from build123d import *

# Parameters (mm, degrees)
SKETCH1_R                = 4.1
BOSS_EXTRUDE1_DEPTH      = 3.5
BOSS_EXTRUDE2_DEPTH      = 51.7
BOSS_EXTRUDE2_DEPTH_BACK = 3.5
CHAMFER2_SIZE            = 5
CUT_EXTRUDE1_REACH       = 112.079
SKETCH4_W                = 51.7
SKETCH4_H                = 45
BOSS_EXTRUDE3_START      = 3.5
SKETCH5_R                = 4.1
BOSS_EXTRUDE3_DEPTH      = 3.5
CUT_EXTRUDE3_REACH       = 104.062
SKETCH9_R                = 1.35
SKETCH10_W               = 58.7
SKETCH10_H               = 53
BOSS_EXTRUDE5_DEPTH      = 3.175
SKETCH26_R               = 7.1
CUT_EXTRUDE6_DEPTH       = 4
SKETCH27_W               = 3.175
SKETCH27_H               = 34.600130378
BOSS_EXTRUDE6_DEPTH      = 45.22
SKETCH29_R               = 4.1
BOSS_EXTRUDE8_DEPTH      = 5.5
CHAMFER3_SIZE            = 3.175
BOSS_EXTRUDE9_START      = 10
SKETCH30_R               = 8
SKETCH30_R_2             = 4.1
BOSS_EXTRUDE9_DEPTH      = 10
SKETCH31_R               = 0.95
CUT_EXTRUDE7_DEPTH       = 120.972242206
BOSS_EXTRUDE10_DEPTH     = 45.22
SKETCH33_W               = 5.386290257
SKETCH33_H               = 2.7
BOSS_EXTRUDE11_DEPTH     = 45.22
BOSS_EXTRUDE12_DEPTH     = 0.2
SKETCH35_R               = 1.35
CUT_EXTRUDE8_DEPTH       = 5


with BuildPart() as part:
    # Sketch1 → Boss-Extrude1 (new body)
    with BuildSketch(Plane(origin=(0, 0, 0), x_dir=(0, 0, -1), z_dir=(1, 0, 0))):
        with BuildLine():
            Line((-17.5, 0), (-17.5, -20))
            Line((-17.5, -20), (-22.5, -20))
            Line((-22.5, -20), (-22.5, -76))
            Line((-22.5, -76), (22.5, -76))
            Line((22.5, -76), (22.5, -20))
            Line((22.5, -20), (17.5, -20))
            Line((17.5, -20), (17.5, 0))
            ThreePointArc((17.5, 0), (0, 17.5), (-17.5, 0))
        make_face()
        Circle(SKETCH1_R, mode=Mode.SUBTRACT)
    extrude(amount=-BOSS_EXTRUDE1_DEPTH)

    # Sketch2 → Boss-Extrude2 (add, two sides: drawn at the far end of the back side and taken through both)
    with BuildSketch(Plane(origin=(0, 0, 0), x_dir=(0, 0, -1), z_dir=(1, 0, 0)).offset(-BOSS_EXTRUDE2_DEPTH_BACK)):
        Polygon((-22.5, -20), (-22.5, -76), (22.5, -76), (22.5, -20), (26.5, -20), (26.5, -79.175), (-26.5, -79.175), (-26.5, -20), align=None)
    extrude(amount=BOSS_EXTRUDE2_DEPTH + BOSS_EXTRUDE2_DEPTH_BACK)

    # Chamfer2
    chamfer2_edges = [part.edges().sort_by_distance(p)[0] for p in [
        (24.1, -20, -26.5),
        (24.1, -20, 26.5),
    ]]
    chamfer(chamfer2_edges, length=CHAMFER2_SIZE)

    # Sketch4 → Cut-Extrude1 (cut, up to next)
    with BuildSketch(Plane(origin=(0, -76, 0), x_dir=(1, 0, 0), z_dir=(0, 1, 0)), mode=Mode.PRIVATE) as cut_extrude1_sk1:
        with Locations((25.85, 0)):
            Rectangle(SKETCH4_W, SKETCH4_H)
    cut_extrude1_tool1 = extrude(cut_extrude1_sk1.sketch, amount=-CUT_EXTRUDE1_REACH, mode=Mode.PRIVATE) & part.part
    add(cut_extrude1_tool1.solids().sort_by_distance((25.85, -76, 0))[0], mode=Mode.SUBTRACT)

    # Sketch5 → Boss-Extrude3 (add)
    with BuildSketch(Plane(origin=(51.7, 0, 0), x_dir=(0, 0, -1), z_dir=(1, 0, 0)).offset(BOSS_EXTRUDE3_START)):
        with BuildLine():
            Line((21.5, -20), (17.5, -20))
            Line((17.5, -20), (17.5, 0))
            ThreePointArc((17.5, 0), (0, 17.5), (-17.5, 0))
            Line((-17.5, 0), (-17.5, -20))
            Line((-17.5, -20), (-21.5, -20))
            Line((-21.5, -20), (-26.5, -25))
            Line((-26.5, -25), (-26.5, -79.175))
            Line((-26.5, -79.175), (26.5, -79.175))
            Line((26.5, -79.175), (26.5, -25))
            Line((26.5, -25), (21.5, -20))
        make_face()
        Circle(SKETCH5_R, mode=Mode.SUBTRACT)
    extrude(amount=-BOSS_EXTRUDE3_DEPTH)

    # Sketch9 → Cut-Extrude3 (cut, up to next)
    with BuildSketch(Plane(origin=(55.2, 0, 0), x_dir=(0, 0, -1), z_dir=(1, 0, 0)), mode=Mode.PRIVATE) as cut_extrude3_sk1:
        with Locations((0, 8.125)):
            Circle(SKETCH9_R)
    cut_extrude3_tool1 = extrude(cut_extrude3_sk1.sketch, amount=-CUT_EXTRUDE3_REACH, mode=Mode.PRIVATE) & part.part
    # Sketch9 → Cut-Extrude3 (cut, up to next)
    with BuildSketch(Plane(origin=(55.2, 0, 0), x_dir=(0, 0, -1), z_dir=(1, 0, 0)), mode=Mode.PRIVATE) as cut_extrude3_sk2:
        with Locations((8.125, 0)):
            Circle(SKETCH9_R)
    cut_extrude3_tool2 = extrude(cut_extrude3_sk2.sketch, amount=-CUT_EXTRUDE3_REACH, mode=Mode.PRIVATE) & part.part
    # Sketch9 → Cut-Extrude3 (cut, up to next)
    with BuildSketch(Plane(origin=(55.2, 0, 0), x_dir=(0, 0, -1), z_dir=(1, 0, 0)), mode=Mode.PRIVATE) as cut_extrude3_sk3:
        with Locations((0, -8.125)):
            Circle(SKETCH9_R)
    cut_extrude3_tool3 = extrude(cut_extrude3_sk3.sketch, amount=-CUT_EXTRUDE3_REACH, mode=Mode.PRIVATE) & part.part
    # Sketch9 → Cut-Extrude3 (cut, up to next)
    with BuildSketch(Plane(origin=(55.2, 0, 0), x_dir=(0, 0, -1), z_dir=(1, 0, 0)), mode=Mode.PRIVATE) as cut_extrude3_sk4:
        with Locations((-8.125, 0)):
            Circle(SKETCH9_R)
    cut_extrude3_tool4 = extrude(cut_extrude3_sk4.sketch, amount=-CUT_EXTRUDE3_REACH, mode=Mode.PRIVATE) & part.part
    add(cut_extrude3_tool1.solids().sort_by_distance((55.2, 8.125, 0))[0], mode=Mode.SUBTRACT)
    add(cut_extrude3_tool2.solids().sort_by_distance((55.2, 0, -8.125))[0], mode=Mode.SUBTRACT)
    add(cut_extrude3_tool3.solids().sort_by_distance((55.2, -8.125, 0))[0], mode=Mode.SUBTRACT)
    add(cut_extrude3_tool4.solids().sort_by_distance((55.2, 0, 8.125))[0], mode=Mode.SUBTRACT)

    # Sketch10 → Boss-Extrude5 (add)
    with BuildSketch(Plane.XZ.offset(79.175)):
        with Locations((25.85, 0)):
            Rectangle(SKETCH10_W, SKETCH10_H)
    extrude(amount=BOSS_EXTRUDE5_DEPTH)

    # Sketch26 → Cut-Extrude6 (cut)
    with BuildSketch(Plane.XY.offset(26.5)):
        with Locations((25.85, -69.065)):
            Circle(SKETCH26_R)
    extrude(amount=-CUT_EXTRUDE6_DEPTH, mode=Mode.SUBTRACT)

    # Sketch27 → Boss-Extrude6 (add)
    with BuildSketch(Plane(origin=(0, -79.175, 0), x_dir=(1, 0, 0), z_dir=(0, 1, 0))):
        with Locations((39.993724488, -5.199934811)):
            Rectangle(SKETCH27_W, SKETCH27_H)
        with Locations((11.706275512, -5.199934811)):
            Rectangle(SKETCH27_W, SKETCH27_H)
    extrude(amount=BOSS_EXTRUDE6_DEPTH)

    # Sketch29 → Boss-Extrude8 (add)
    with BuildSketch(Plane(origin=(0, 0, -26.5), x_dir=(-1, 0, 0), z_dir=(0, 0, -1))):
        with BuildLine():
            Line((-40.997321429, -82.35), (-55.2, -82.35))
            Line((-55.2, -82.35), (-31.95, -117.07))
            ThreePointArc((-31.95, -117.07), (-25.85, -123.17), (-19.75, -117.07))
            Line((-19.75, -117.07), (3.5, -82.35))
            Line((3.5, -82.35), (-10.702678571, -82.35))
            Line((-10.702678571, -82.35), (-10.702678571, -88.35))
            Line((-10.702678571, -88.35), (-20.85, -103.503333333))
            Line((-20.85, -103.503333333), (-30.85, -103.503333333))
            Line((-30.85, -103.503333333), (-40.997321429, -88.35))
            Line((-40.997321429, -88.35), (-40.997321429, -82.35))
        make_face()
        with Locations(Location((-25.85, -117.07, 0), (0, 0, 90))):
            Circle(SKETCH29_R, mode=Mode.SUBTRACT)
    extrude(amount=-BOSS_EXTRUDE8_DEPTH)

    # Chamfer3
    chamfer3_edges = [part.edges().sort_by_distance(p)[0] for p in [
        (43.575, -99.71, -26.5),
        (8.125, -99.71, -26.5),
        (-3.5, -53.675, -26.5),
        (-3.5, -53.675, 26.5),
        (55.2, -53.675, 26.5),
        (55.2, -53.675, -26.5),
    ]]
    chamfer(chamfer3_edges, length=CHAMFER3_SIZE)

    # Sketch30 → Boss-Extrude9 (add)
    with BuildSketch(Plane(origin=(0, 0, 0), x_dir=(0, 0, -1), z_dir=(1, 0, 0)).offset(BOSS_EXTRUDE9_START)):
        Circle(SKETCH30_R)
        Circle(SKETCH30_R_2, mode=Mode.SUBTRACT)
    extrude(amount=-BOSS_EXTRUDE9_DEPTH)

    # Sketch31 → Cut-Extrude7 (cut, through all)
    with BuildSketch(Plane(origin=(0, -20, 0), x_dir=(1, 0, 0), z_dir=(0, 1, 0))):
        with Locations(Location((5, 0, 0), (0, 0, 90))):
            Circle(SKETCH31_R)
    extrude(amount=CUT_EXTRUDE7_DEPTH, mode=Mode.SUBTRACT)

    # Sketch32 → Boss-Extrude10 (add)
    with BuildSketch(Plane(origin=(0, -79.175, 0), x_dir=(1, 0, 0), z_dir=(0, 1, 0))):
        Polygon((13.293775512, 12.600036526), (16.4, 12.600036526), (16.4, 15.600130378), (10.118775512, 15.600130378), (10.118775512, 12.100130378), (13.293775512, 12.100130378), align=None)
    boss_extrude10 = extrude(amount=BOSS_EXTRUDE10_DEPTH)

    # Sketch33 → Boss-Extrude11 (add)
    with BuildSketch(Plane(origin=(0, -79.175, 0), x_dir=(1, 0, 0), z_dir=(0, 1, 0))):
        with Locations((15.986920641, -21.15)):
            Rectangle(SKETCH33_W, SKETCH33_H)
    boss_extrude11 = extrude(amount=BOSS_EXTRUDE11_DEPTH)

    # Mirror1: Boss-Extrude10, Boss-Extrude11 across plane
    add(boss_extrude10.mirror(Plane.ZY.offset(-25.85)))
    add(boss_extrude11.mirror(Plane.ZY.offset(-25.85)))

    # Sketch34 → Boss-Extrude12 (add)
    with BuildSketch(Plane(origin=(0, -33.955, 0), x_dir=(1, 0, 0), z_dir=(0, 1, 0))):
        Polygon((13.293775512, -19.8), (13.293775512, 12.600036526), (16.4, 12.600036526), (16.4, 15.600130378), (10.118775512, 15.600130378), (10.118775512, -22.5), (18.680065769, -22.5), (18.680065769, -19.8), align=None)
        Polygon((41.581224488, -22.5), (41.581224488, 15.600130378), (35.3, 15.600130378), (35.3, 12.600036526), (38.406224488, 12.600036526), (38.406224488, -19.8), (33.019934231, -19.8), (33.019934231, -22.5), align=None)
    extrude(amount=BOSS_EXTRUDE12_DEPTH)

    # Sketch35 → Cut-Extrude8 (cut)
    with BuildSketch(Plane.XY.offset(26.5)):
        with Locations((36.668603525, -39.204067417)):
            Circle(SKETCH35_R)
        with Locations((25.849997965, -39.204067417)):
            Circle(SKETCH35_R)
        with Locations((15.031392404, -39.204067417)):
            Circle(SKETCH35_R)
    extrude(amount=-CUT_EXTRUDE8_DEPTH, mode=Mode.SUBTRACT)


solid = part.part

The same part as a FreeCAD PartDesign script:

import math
import FreeCAD as App
import Part
import Sketcher
Q = App.Units.Quantity


def edges_at(feature, points):
    """Names of the edges that pass closest to the given points."""
    edges = feature.Shape.Edges
    near = lambda p: min(range(len(edges)), key=lambda i: edges[i].distToShape(Part.Vertex(*p))[0])
    return sorted({f"Edge{near(p) + 1}" for p in points})

doc = App.newDocument("Part")
body = doc.addObject("PartDesign::Body", "Body")

# Sketch on YZ plane
sketch1 = doc.addObject("Sketcher::SketchObject", "Sketch")
body.addObject(sketch1)
sketch1.AttachmentSupport = (doc.YZ_Plane, [""])
sketch1.MapMode = "FlatFace"
sketch1.addGeometry(Part.LineSegment(App.Vector(0, 17.5, 0), App.Vector(-20, 17.5, 0)), False)
sketch1.addGeometry(Part.LineSegment(App.Vector(-20, 17.5, 0), App.Vector(-20, 22.5, 0)), False)
sketch1.addGeometry(Part.LineSegment(App.Vector(-20, 22.5, 0), App.Vector(-76, 22.5, 0)), False)
sketch1.addGeometry(Part.LineSegment(App.Vector(-76, 22.5, 0), App.Vector(-76, -22.5, 0)), False)
sketch1.addGeometry(Part.LineSegment(App.Vector(-76, -22.5, 0), App.Vector(-20, -22.5, 0)), False)
sketch1.addGeometry(Part.LineSegment(App.Vector(-20, -22.5, 0), App.Vector(-20, -17.5, 0)), False)
sketch1.addGeometry(Part.LineSegment(App.Vector(-20, -17.5, 0), App.Vector(0, -17.5, 0)), False)
sketch1.addGeometry(Part.ArcOfCircle(Part.Circle(App.Vector(0, 0, 0), App.Vector(0, 0, 1), 17.5), math.radians(-90), math.radians(90)), False)
sketch1.addGeometry(Part.Circle(App.Vector(0, 0, 0), App.Vector(0, 0, 1), 4.1), False)
sketch1.addConstraint(Sketcher.Constraint("Coincident", 0, 2, 1, 1))
sketch1.addConstraint(Sketcher.Constraint("Coincident", 1, 2, 2, 1))
sketch1.addConstraint(Sketcher.Constraint("Coincident", 2, 2, 3, 1))
sketch1.addConstraint(Sketcher.Constraint("Coincident", 3, 2, 4, 1))
sketch1.addConstraint(Sketcher.Constraint("Coincident", 4, 2, 5, 1))
sketch1.addConstraint(Sketcher.Constraint("Coincident", 5, 2, 6, 1))
sketch1.addConstraint(Sketcher.Constraint("Tangent", 6, 2, 7, 1))
sketch1.addConstraint(Sketcher.Constraint("Tangent", 7, 2, 0, 1))
sketch1.addConstraint(Sketcher.Constraint("Horizontal", 0))
sketch1.addConstraint(Sketcher.Constraint("Vertical", 1))
sketch1.addConstraint(Sketcher.Constraint("Horizontal", 2))
sketch1.addConstraint(Sketcher.Constraint("Vertical", 3))
sketch1.addConstraint(Sketcher.Constraint("Horizontal", 4))
sketch1.addConstraint(Sketcher.Constraint("Vertical", 5))
sketch1.addConstraint(Sketcher.Constraint("Horizontal", 6))
sketch1.addConstraint(Sketcher.Constraint("Coincident", 7, 3, -1, 1))
sketch1.addConstraint(Sketcher.Constraint("Coincident", 8, 3, -1, 1))
sketch1.addConstraint(Sketcher.Constraint("Symmetric", 1, 2, 4, 2, -1))
sketch1.addConstraint(Sketcher.Constraint("Diameter", 8, Q("8.2 mm")))
sketch1.addConstraint(Sketcher.Constraint("Radius", 7, Q("17.5 mm")))
sketch1.addConstraint(Sketcher.Constraint("DistanceX", 0, 2, 0, 1, Q("20 mm")))
sketch1.addConstraint(Sketcher.Constraint("DistanceX", 2, 2, 2, 1, Q("56 mm")))
sketch1.addConstraint(Sketcher.Constraint("DistanceY", 1, 1, 1, 2, Q("5 mm")))
pad1 = doc.addObject("PartDesign::Pad", "Pad")
body.addObject(pad1)
pad1.Profile = sketch1
pad1.Length = 3.5
pad1.Reversed = True

# Sketch on YZ plane
sketch2 = doc.addObject("Sketcher::SketchObject", "Sketch001")
body.addObject(sketch2)
sketch2.AttachmentSupport = (doc.YZ_Plane, [""])
sketch2.MapMode = "FlatFace"
sketch2.addGeometry(Part.LineSegment(App.Vector(-76, 22.5, 0), App.Vector(-20, 22.5, 0)), False)
sketch2.addGeometry(Part.LineSegment(App.Vector(-20, 22.5, 0), App.Vector(-20, 26.5, 0)), False)
sketch2.addGeometry(Part.LineSegment(App.Vector(-20, 26.5, 0), App.Vector(-79.2, 26.5, 0)), False)
sketch2.addGeometry(Part.LineSegment(App.Vector(-79.2, 26.5, 0), App.Vector(-79.2, -26.5, 0)), False)
sketch2.addGeometry(Part.LineSegment(App.Vector(-79.2, -26.5, 0), App.Vector(-20, -26.5, 0)), False)
sketch2.addGeometry(Part.LineSegment(App.Vector(-20, -26.5, 0), App.Vector(-20, -22.5, 0)), False)
sketch2.addGeometry(Part.LineSegment(App.Vector(-20, -22.5, 0), App.Vector(-76, -22.5, 0)), False)
sketch2.addGeometry(Part.LineSegment(App.Vector(-76, -22.5, 0), App.Vector(-76, 22.5, 0)), False)
sketch2.addConstraint(Sketcher.Constraint("Coincident", 0, 2, 1, 1))
sketch2.addConstraint(Sketcher.Constraint("Coincident", 1, 2, 2, 1))
sketch2.addConstraint(Sketcher.Constraint("Coincident", 2, 2, 3, 1))
sketch2.addConstraint(Sketcher.Constraint("Coincident", 3, 2, 4, 1))
sketch2.addConstraint(Sketcher.Constraint("Coincident", 4, 2, 5, 1))
sketch2.addConstraint(Sketcher.Constraint("Coincident", 5, 2, 6, 1))
sketch2.addConstraint(Sketcher.Constraint("Coincident", 6, 2, 7, 1))
sketch2.addConstraint(Sketcher.Constraint("Coincident", 7, 2, 0, 1))
sketch2.addConstraint(Sketcher.Constraint("Horizontal", 0))
sketch2.addConstraint(Sketcher.Constraint("Vertical", 1))
sketch2.addConstraint(Sketcher.Constraint("Horizontal", 2))
sketch2.addConstraint(Sketcher.Constraint("Vertical", 3))
sketch2.addConstraint(Sketcher.Constraint("Horizontal", 4))
sketch2.addConstraint(Sketcher.Constraint("Vertical", 5))
sketch2.addConstraint(Sketcher.Constraint("Horizontal", 6))
sketch2.addConstraint(Sketcher.Constraint("Vertical", 7))
sketch2.addConstraint(Sketcher.Constraint("Symmetric", 1, 2, 4, 2, -1))
sketch2.addConstraint(Sketcher.Constraint("Equal", 1, 5))
sketch2.addConstraint(Sketcher.Constraint("DistanceX", 0, 1, 0, 2, Q("56 mm")))
sketch2.addConstraint(Sketcher.Constraint("DistanceY", 1, 1, 1, 2, Q("4 mm")))
sketch2.addConstraint(Sketcher.Constraint("DistanceY", 3, 2, 3, 1, Q("53 mm")))
sketch2.addConstraint(Sketcher.Constraint("DistanceX", 0, 2, -1, 1, Q("20 mm")))
sketch2.addConstraint(Sketcher.Constraint("DistanceX", 2, 2, 2, 1, Q("59.175 mm")))
pad2 = doc.addObject("PartDesign::Pad", "Pad001")
body.addObject(pad2)
pad2.Profile = sketch2
pad2.Type = "TwoLengths"
pad2.Length = 51.7
pad2.Length2 = 3.5
doc.recompute()

chamfer = doc.addObject("PartDesign::Chamfer", "Chamfer")
body.addObject(chamfer)
chamfer.Base = (pad2, edges_at(pad2, [(24.1, -20, -26.5), (24.1, -20, 26.5)]))
chamfer.Size = 5

# Sketch on XZ plane
sketch3 = doc.addObject("Sketcher::SketchObject", "Sketch002")
body.addObject(sketch3)
sketch3.AttachmentSupport = (doc.XZ_Plane, [""])
sketch3.MapMode = "FlatFace"
sketch3.AttachmentOffset = App.Placement(App.Vector(0, 0, 76), App.Rotation())
sketch3.addGeometry(Part.LineSegment(App.Vector(0, -22, 0), App.Vector(0, 22, 0)), False)
sketch3.addGeometry(Part.LineSegment(App.Vector(0, 22, 0), App.Vector(52, 22, 0)), False)
sketch3.addGeometry(Part.LineSegment(App.Vector(52, 22, 0), App.Vector(52, -22, 0)), False)
sketch3.addGeometry(Part.LineSegment(App.Vector(52, -22, 0), App.Vector(0, -22, 0)), False)
sketch3.addConstraint(Sketcher.Constraint("Coincident", 0, 2, 1, 1))
sketch3.addConstraint(Sketcher.Constraint("Coincident", 1, 2, 2, 1))
sketch3.addConstraint(Sketcher.Constraint("Coincident", 2, 2, 3, 1))
sketch3.addConstraint(Sketcher.Constraint("Coincident", 3, 2, 0, 1))
sketch3.addConstraint(Sketcher.Constraint("Vertical", 0))
sketch3.addConstraint(Sketcher.Constraint("Horizontal", 1))
sketch3.addConstraint(Sketcher.Constraint("Vertical", 2))
sketch3.addConstraint(Sketcher.Constraint("Horizontal", 3))
sketch3.addConstraint(Sketcher.Constraint("Symmetric", 0, 2, 3, 2, -1, 1))
sketch3.addConstraint(Sketcher.Constraint("DistanceY", 0, 1, 0, 2, Q("45 mm")))
sketch3.addConstraint(Sketcher.Constraint("DistanceX", 1, 1, 1, 2, Q("51.7 mm")))
pocket1 = doc.addObject("PartDesign::Pocket", "Pocket")
body.addObject(pocket1)
pocket1.Profile = sketch3
pocket1.Type = "UpToFirst"
pocket1.Reversed = True

# Sketch on YZ plane
sketch4 = doc.addObject("Sketcher::SketchObject", "Sketch003")
body.addObject(sketch4)
sketch4.AttachmentSupport = (doc.YZ_Plane, [""])
sketch4.MapMode = "FlatFace"
sketch4.AttachmentOffset = App.Placement(App.Vector(0, 0, 55.2), App.Rotation())
sketch4.addGeometry(Part.LineSegment(App.Vector(-20, -21.5, 0), App.Vector(-20, -17.5, 0)), False)
sketch4.addGeometry(Part.LineSegment(App.Vector(-20, -17.5, 0), App.Vector(0, -17.5, 0)), False)
sketch4.addGeometry(Part.ArcOfCircle(Part.Circle(App.Vector(0, 0, 0), App.Vector(0, 0, 1), 17.5), math.radians(-90), math.radians(90)), False)
sketch4.addGeometry(Part.LineSegment(App.Vector(0, 17.5, 0), App.Vector(-20, 17.5, 0)), False)
sketch4.addGeometry(Part.LineSegment(App.Vector(-20, 17.5, 0), App.Vector(-20, 21.5, 0)), False)
sketch4.addGeometry(Part.LineSegment(App.Vector(-20, 21.5, 0), App.Vector(-25, 26.5, 0)), False)
sketch4.addGeometry(Part.LineSegment(App.Vector(-25, 26.5, 0), App.Vector(-79.2, 26.5, 0)), False)
sketch4.addGeometry(Part.LineSegment(App.Vector(-79.2, 26.5, 0), App.Vector(-79.2, -26.5, 0)), False)
sketch4.addGeometry(Part.LineSegment(App.Vector(-79.2, -26.5, 0), App.Vector(-25, -26.5, 0)), False)
sketch4.addGeometry(Part.LineSegment(App.Vector(-25, -26.5, 0), App.Vector(-20, -21.5, 0)), False)
sketch4.addGeometry(Part.Circle(App.Vector(0, 0, 0), App.Vector(0, 0, 1), 4.1), False)
sketch4.addConstraint(Sketcher.Constraint("Coincident", 0, 2, 1, 1))
sketch4.addConstraint(Sketcher.Constraint("Tangent", 1, 2, 2, 1))
sketch4.addConstraint(Sketcher.Constraint("Tangent", 2, 2, 3, 1))
sketch4.addConstraint(Sketcher.Constraint("Coincident", 3, 2, 4, 1))
sketch4.addConstraint(Sketcher.Constraint("Coincident", 4, 2, 5, 1))
sketch4.addConstraint(Sketcher.Constraint("Coincident", 5, 2, 6, 1))
sketch4.addConstraint(Sketcher.Constraint("Coincident", 6, 2, 7, 1))
sketch4.addConstraint(Sketcher.Constraint("Coincident", 7, 2, 8, 1))
sketch4.addConstraint(Sketcher.Constraint("Coincident", 8, 2, 9, 1))
sketch4.addConstraint(Sketcher.Constraint("Coincident", 9, 2, 0, 1))
sketch4.addConstraint(Sketcher.Constraint("Vertical", 0))
sketch4.addConstraint(Sketcher.Constraint("Horizontal", 1))
sketch4.addConstraint(Sketcher.Constraint("Horizontal", 3))
sketch4.addConstraint(Sketcher.Constraint("Vertical", 4))
sketch4.addConstraint(Sketcher.Constraint("Horizontal", 6))
sketch4.addConstraint(Sketcher.Constraint("Vertical", 7))
sketch4.addConstraint(Sketcher.Constraint("Horizontal", 8))
sketch4.addConstraint(Sketcher.Constraint("Coincident", 2, 3, -1, 1))
sketch4.addConstraint(Sketcher.Constraint("Coincident", 10, 3, -1, 1))
sketch4.addConstraint(Sketcher.Constraint("Symmetric", 5, 2, 8, 2, -1))
sketch4.addConstraint(Sketcher.Constraint("Symmetric", 4, 2, 9, 2, -1))
sketch4.addConstraint(Sketcher.Constraint("Perpendicular", 5, 9))
sketch4.addConstraint(Sketcher.Constraint("Diameter", 10, Q("8.2 mm")))
sketch4.addConstraint(Sketcher.Constraint("Radius", 2, Q("17.5 mm")))
sketch4.addConstraint(Sketcher.Constraint("DistanceX", 1, 1, 1, 2, Q("20 mm")))
sketch4.addConstraint(Sketcher.Constraint("DistanceY", 0, 1, 0, 2, Q("4 mm")))
sketch4.addConstraint(Sketcher.Constraint("DistanceY", 7, 2, 7, 1, Q("53 mm")))
sketch4.addConstraint(Sketcher.Constraint("DistanceX", 6, 2, 6, 1, Q("54.175 mm")))
pad3 = doc.addObject("PartDesign::Pad", "Pad002")
body.addObject(pad3)
pad3.Profile = sketch4
pad3.Length = 3.5
pad3.Reversed = True

# Sketch on YZ plane
sketch5 = doc.addObject("Sketcher::SketchObject", "Sketch004")
body.addObject(sketch5)
sketch5.AttachmentSupport = (doc.YZ_Plane, [""])
sketch5.MapMode = "FlatFace"
sketch5.AttachmentOffset = App.Placement(App.Vector(0, 0, 55.2), App.Rotation())
sketch5.addGeometry(Part.Circle(App.Vector(8.1, 0, 0), App.Vector(0, 0, 1), 1.4), False)
sketch5.addConstraint(Sketcher.Constraint("PointOnObject", 0, 3, -1))
sketch5.addConstraint(Sketcher.Constraint("Diameter", 0, Q("2.7 mm")))
sketch5.addConstraint(Sketcher.Constraint("DistanceX", -1, 1, 0, 3, Q("8.125 mm")))
pocket2 = doc.addObject("PartDesign::Pocket", "Pocket001")
body.addObject(pocket2)
pocket2.Profile = sketch5
pocket2.Type = "UpToFirst"

# Sketch on YZ plane
sketch6 = doc.addObject("Sketcher::SketchObject", "Sketch005")
body.addObject(sketch6)
sketch6.AttachmentSupport = (doc.YZ_Plane, [""])
sketch6.MapMode = "FlatFace"
sketch6.AttachmentOffset = App.Placement(App.Vector(0, 0, 55.2), App.Rotation())
sketch6.addGeometry(Part.Circle(App.Vector(0, -8.1, 0), App.Vector(0, 0, 1), 1.4), False)
sketch6.addConstraint(Sketcher.Constraint("PointOnObject", 0, 3, -2))
sketch6.addConstraint(Sketcher.Constraint("Diameter", 0, Q("2.7 mm")))
sketch6.addConstraint(Sketcher.Constraint("DistanceY", 0, 3, -1, 1, Q("8.125 mm")))
pocket3 = doc.addObject("PartDesign::Pocket", "Pocket002")
body.addObject(pocket3)
pocket3.Profile = sketch6
pocket3.Type = "UpToFirst"

# Sketch on YZ plane
sketch7 = doc.addObject("Sketcher::SketchObject", "Sketch006")
body.addObject(sketch7)
sketch7.AttachmentSupport = (doc.YZ_Plane, [""])
sketch7.MapMode = "FlatFace"
sketch7.AttachmentOffset = App.Placement(App.Vector(0, 0, 55.2), App.Rotation())
sketch7.addGeometry(Part.Circle(App.Vector(-8.1, 0, 0), App.Vector(0, 0, 1), 1.4), False)
sketch7.addConstraint(Sketcher.Constraint("PointOnObject", 0, 3, -1))
sketch7.addConstraint(Sketcher.Constraint("Diameter", 0, Q("2.7 mm")))
sketch7.addConstraint(Sketcher.Constraint("DistanceX", 0, 3, -1, 1, Q("8.125 mm")))
pocket4 = doc.addObject("PartDesign::Pocket", "Pocket003")
body.addObject(pocket4)
pocket4.Profile = sketch7
pocket4.Type = "UpToFirst"

# Sketch on YZ plane
sketch8 = doc.addObject("Sketcher::SketchObject", "Sketch007")
body.addObject(sketch8)
sketch8.AttachmentSupport = (doc.YZ_Plane, [""])
sketch8.MapMode = "FlatFace"
sketch8.AttachmentOffset = App.Placement(App.Vector(0, 0, 55.2), App.Rotation())
sketch8.addGeometry(Part.Circle(App.Vector(0, 8.1, 0), App.Vector(0, 0, 1), 1.4), False)
sketch8.addConstraint(Sketcher.Constraint("PointOnObject", 0, 3, -2))
sketch8.addConstraint(Sketcher.Constraint("Diameter", 0, Q("2.7 mm")))
sketch8.addConstraint(Sketcher.Constraint("DistanceY", -1, 1, 0, 3, Q("8.125 mm")))
pocket5 = doc.addObject("PartDesign::Pocket", "Pocket004")
body.addObject(pocket5)
pocket5.Profile = sketch8
pocket5.Type = "UpToFirst"

# Sketch on XZ plane
sketch9 = doc.addObject("Sketcher::SketchObject", "Sketch008")
body.addObject(sketch9)
sketch9.AttachmentSupport = (doc.XZ_Plane, [""])
sketch9.MapMode = "FlatFace"
sketch9.AttachmentOffset = App.Placement(App.Vector(0, 0, 79.175), App.Rotation())
sketch9.addGeometry(Part.LineSegment(App.Vector(-4, 26, 0), App.Vector(-4, -26, 0)), False)
sketch9.addGeometry(Part.LineSegment(App.Vector(-4, -26, 0), App.Vector(55, -26, 0)), False)
sketch9.addGeometry(Part.LineSegment(App.Vector(55, -26, 0), App.Vector(55, 26, 0)), False)
sketch9.addGeometry(Part.LineSegment(App.Vector(55, 26, 0), App.Vector(-4, 26, 0)), False)
sketch9.addConstraint(Sketcher.Constraint("Coincident", 0, 2, 1, 1))
sketch9.addConstraint(Sketcher.Constraint("Coincident", 1, 2, 2, 1))
sketch9.addConstraint(Sketcher.Constraint("Coincident", 2, 2, 3, 1))
sketch9.addConstraint(Sketcher.Constraint("Coincident", 3, 2, 0, 1))
sketch9.addConstraint(Sketcher.Constraint("Vertical", 0))
sketch9.addConstraint(Sketcher.Constraint("Horizontal", 1))
sketch9.addConstraint(Sketcher.Constraint("Vertical", 2))
sketch9.addConstraint(Sketcher.Constraint("Horizontal", 3))
sketch9.addConstraint(Sketcher.Constraint("DistanceY", 0, 2, 0, 1, Q("53 mm")))
sketch9.addConstraint(Sketcher.Constraint("DistanceX", 1, 1, 1, 2, Q("58.7 mm")))
sketch9.addConstraint(Sketcher.Constraint("DistanceX", 0, 2, -1, 1, Q("3.5 mm")))
sketch9.addConstraint(Sketcher.Constraint("DistanceY", 0, 2, -1, 1, Q("26.5 mm")))
pad4 = doc.addObject("PartDesign::Pad", "Pad003")
body.addObject(pad4)
pad4.Profile = sketch9
pad4.Length = 3.175

# Sketch on XY plane
sketch10 = doc.addObject("Sketcher::SketchObject", "Sketch009")
body.addObject(sketch10)
sketch10.AttachmentSupport = (doc.XY_Plane, [""])
sketch10.MapMode = "FlatFace"
sketch10.AttachmentOffset = App.Placement(App.Vector(0, 0, 26.5), App.Rotation())
sketch10.addGeometry(Part.Circle(App.Vector(26, -69, 0), App.Vector(0, 0, 1), 7), False)
sketch10.addConstraint(Sketcher.Constraint("Diameter", 0, Q("14.2 mm")))
sketch10.addConstraint(Sketcher.Constraint("DistanceX", -1, 1, 0, 3, Q("25.85 mm")))
sketch10.addConstraint(Sketcher.Constraint("DistanceY", 0, 3, -1, 1, Q("69.065 mm")))
pocket6 = doc.addObject("PartDesign::Pocket", "Pocket005")
body.addObject(pocket6)
pocket6.Profile = sketch10
pocket6.Length = 4

# Sketch on XZ plane
sketch11 = doc.addObject("Sketcher::SketchObject", "Sketch010")
body.addObject(sketch11)
sketch11.AttachmentSupport = (doc.XZ_Plane, [""])
sketch11.MapMode = "FlatFace"
sketch11.AttachmentOffset = App.Placement(App.Vector(0, 0, 79.175), App.Rotation())
sketch11.addGeometry(Part.LineSegment(App.Vector(38.4, -12.1, 0), App.Vector(38.4, 22.5, 0)), False)
sketch11.addGeometry(Part.LineSegment(App.Vector(38.4, 22.5, 0), App.Vector(41.6, 22.5, 0)), False)
sketch11.addGeometry(Part.LineSegment(App.Vector(41.6, 22.5, 0), App.Vector(41.6, -12.1, 0)), False)
sketch11.addGeometry(Part.LineSegment(App.Vector(41.6, -12.1, 0), App.Vector(38.4, -12.1, 0)), False)
sketch11.addGeometry(Part.LineSegment(App.Vector(10.1, -12.1, 0), App.Vector(10.1, 22.5, 0)), False)
sketch11.addGeometry(Part.LineSegment(App.Vector(10.1, 22.5, 0), App.Vector(13.3, 22.5, 0)), False)
sketch11.addGeometry(Part.LineSegment(App.Vector(13.3, 22.5, 0), App.Vector(13.3, -12.1, 0)), False)
sketch11.addGeometry(Part.LineSegment(App.Vector(13.3, -12.1, 0), App.Vector(10.1, -12.1, 0)), False)
sketch11.addConstraint(Sketcher.Constraint("Coincident", 0, 2, 1, 1))
sketch11.addConstraint(Sketcher.Constraint("Coincident", 1, 2, 2, 1))
sketch11.addConstraint(Sketcher.Constraint("Coincident", 2, 2, 3, 1))
sketch11.addConstraint(Sketcher.Constraint("Coincident", 3, 2, 0, 1))
sketch11.addConstraint(Sketcher.Constraint("Coincident", 4, 2, 5, 1))
sketch11.addConstraint(Sketcher.Constraint("Coincident", 5, 2, 6, 1))
sketch11.addConstraint(Sketcher.Constraint("Coincident", 6, 2, 7, 1))
sketch11.addConstraint(Sketcher.Constraint("Coincident", 7, 2, 4, 1))
sketch11.addConstraint(Sketcher.Constraint("Vertical", 0))
sketch11.addConstraint(Sketcher.Constraint("Horizontal", 1))
sketch11.addConstraint(Sketcher.Constraint("Vertical", 2))
sketch11.addConstraint(Sketcher.Constraint("Horizontal", 3))
sketch11.addConstraint(Sketcher.Constraint("Vertical", 4))
sketch11.addConstraint(Sketcher.Constraint("Horizontal", 5))
sketch11.addConstraint(Sketcher.Constraint("Vertical", 6))
sketch11.addConstraint(Sketcher.Constraint("Horizontal", 7))
sketch11.addConstraint(Sketcher.Constraint("Horizontal", 1, 2, 4, 2))
sketch11.addConstraint(Sketcher.Constraint("Horizontal", 3, 2, 6, 2))
sketch11.addConstraint(Sketcher.Constraint("Equal", 3, 5))
sketch11.addConstraint(Sketcher.Constraint("DistanceY", -1, 1, 0, 2, Q("22.5 mm")))
sketch11.addConstraint(Sketcher.Constraint("DistanceX", 1, 1, 1, 2, Q("3.175 mm")))
sketch11.addConstraint(Sketcher.Constraint("DistanceY", 0, 1, 0, 2, Q("34.60013 mm")))
sketch11.addConstraint(Sketcher.Constraint("DistanceX", 4, 2, 0, 2, Q("28.287449 mm")))
sketch11.addConstraint(Sketcher.Constraint("DistanceX", -1, 1, 0, 2, Q("38.406224 mm")))
pad5 = doc.addObject("PartDesign::Pad", "Pad004")
body.addObject(pad5)
pad5.Profile = sketch11
pad5.Length = 45.22
pad5.Reversed = True

# Sketch on XY plane
sketch12 = doc.addObject("Sketcher::SketchObject", "Sketch011")
body.addObject(sketch12)
sketch12.AttachmentSupport = (doc.XY_Plane, [""])
sketch12.MapMode = "FlatFace"
sketch12.AttachmentOffset = App.Placement(App.Vector(0, 0, -26.5), App.Rotation())
sketch12.addGeometry(Part.LineSegment(App.Vector(41, -82.3, 0), App.Vector(55.2, -82.3, 0)), False)
sketch12.addGeometry(Part.LineSegment(App.Vector(55.2, -82.3, 0), App.Vector(31.9, -117.1, 0)), False)
sketch12.addGeometry(Part.ArcOfCircle(Part.Circle(App.Vector(25.9, -117.1, 0), App.Vector(0, 0, 1), 6.1), math.radians(180), math.radians(360)), False)
sketch12.addGeometry(Part.LineSegment(App.Vector(19.8, -117.1, 0), App.Vector(-3.5, -82.3, 0)), False)
sketch12.addGeometry(Part.LineSegment(App.Vector(-3.5, -82.3, 0), App.Vector(10.7, -82.3, 0)), False)
sketch12.addGeometry(Part.LineSegment(App.Vector(10.7, -82.3, 0), App.Vector(10.7, -88.3, 0)), False)
sketch12.addGeometry(Part.LineSegment(App.Vector(10.7, -88.3, 0), App.Vector(20.9, -103.5, 0)), False)
sketch12.addGeometry(Part.LineSegment(App.Vector(20.9, -103.5, 0), App.Vector(30.9, -103.5, 0)), False)
sketch12.addGeometry(Part.LineSegment(App.Vector(30.9, -103.5, 0), App.Vector(41, -88.3, 0)), False)
sketch12.addGeometry(Part.LineSegment(App.Vector(41, -88.3, 0), App.Vector(41, -82.3, 0)), False)
sketch12.addGeometry(Part.Circle(App.Vector(25.9, -117.1, 0), App.Vector(0, 0, 1), 4.1), False)
sketch12.addConstraint(Sketcher.Constraint("Coincident", 0, 2, 1, 1))
sketch12.addConstraint(Sketcher.Constraint("Coincident", 1, 2, 2, 2))
sketch12.addConstraint(Sketcher.Constraint("Coincident", 2, 1, 3, 1))
sketch12.addConstraint(Sketcher.Constraint("Coincident", 3, 2, 4, 1))
sketch12.addConstraint(Sketcher.Constraint("Coincident", 4, 2, 5, 1))
sketch12.addConstraint(Sketcher.Constraint("Coincident", 5, 2, 6, 1))
sketch12.addConstraint(Sketcher.Constraint("Coincident", 6, 2, 7, 1))
sketch12.addConstraint(Sketcher.Constraint("Coincident", 7, 2, 8, 1))
sketch12.addConstraint(Sketcher.Constraint("Coincident", 8, 2, 9, 1))
sketch12.addConstraint(Sketcher.Constraint("Coincident", 9, 2, 0, 1))
sketch12.addConstraint(Sketcher.Constraint("Horizontal", 0))
sketch12.addConstraint(Sketcher.Constraint("Horizontal", 4))
sketch12.addConstraint(Sketcher.Constraint("Vertical", 5))
sketch12.addConstraint(Sketcher.Constraint("Horizontal", 7))
sketch12.addConstraint(Sketcher.Constraint("Vertical", 9))
sketch12.addConstraint(Sketcher.Constraint("Coincident", 10, 3, 2, 3))
sketch12.addConstraint(Sketcher.Constraint("Parallel", 3, 6))
sketch12.addConstraint(Sketcher.Constraint("Parallel", 1, 8))
sketch12.addConstraint(Sketcher.Constraint("Horizontal", 10, 3, 1, 2))
sketch12.addConstraint(Sketcher.Constraint("Horizontal", 1, 2, 2, 1))
sketch12.addConstraint(Sketcher.Constraint("Horizontal", 0, 2, 3, 2))
sketch12.addConstraint(Sketcher.Constraint("Horizontal", 5, 2, 8, 2))
sketch12.addConstraint(Sketcher.Constraint("Equal", 0, 4))
sketch12.addConstraint(Sketcher.Constraint("Equal", 1, 3))
sketch12.addConstraint(Sketcher.Constraint("Diameter", 10, Q("8.2 mm")))
sketch12.addConstraint(Sketcher.Constraint("Radius", 2, Q("6.1 mm")))
sketch12.addConstraint(Sketcher.Constraint("DistanceX", 7, 1, 7, 2, Q("10 mm")))
sketch12.addConstraint(Sketcher.Constraint("DistanceY", 5, 2, 5, 1, Q("6 mm")))
sketch12.addConstraint(Sketcher.Constraint("DistanceX", -1, 1, 0, 2, Q("55.2 mm")))
sketch12.addConstraint(Sketcher.Constraint("DistanceX", 3, 2, -1, 1, Q("3.5 mm")))
sketch12.addConstraint(Sketcher.Constraint("DistanceY", 2, 3, -1, 1, Q("117.07 mm")))
sketch12.addConstraint(Sketcher.Constraint("DistanceY", 0, 2, -1, 1, Q("82.35 mm")))
sketch12.addConstraint(Sketcher.Constraint("DistanceX", 0, 1, 0, 2, Q("14.202679 mm")))
pad6 = doc.addObject("PartDesign::Pad", "Pad005")
body.addObject(pad6)
pad6.Profile = sketch12
pad6.Length = 5.5
doc.recompute()

chamfer2 = doc.addObject("PartDesign::Chamfer", "Chamfer001")
body.addObject(chamfer2)
chamfer2.Base = (pad6, edges_at(pad6, [
    (43.575, -99.71, -26.5),
    (8.125, -99.71, -26.5),
    (-3.5, -53.675, -26.5),
    (-3.5, -53.675, 26.5),
    (55.2, -53.675, 26.5),
    (55.2, -53.675, -26.5),
]))
chamfer2.Size = 3.175

# Sketch on YZ plane
sketch13 = doc.addObject("Sketcher::SketchObject", "Sketch012")
body.addObject(sketch13)
sketch13.AttachmentSupport = (doc.YZ_Plane, [""])
sketch13.MapMode = "FlatFace"
sketch13.AttachmentOffset = App.Placement(App.Vector(0, 0, 10), App.Rotation())
sketch13.addGeometry(Part.Circle(App.Vector(0, 0, 0), App.Vector(0, 0, 1), 8), False)
sketch13.addGeometry(Part.Circle(App.Vector(0, 0, 0), App.Vector(0, 0, 1), 4.1), False)
sketch13.addConstraint(Sketcher.Constraint("Coincident", 0, 3, -1, 1))
sketch13.addConstraint(Sketcher.Constraint("Coincident", 1, 3, -1, 1))
sketch13.addConstraint(Sketcher.Constraint("Diameter", 0, Q("16 mm")))
sketch13.addConstraint(Sketcher.Constraint("Diameter", 1, Q("8.2 mm")))
pad7 = doc.addObject("PartDesign::Pad", "Pad006")
body.addObject(pad7)
pad7.Profile = sketch13
pad7.Length = 10
pad7.Reversed = True

# Sketch on XZ plane
sketch14 = doc.addObject("Sketcher::SketchObject", "Sketch013")
body.addObject(sketch14)
sketch14.AttachmentSupport = (doc.XZ_Plane, [""])
sketch14.MapMode = "FlatFace"
sketch14.AttachmentOffset = App.Placement(App.Vector(0, 0, 20), App.Rotation())
sketch14.addGeometry(Part.Circle(App.Vector(5, 0, 0), App.Vector(0, 0, 1), 0.9), False)
sketch14.addConstraint(Sketcher.Constraint("PointOnObject", 0, 3, -1))
sketch14.addConstraint(Sketcher.Constraint("Diameter", 0, Q("1.9 mm")))
sketch14.addConstraint(Sketcher.Constraint("DistanceX", -1, 1, 0, 3, Q("5 mm")))
pocket7 = doc.addObject("PartDesign::Pocket", "Pocket006")
body.addObject(pocket7)
pocket7.Profile = sketch14
pocket7.Type = "ThroughAll"

# Sketch on XZ plane
sketch15 = doc.addObject("Sketcher::SketchObject", "Sketch014")
body.addObject(sketch15)
sketch15.AttachmentSupport = (doc.XZ_Plane, [""])
sketch15.MapMode = "FlatFace"
sketch15.AttachmentOffset = App.Placement(App.Vector(0, 0, 79.175), App.Rotation())
sketch15.addGeometry(Part.LineSegment(App.Vector(13.29, -12.6, 0), App.Vector(16.4, -12.6, 0)), False)
sketch15.addGeometry(Part.LineSegment(App.Vector(16.4, -12.6, 0), App.Vector(16.4, -15.6, 0)), False)
sketch15.addGeometry(Part.LineSegment(App.Vector(16.4, -15.6, 0), App.Vector(10.12, -15.6, 0)), False)
sketch15.addGeometry(Part.LineSegment(App.Vector(10.12, -15.6, 0), App.Vector(10.12, -12.1, 0)), False)
sketch15.addGeometry(Part.LineSegment(App.Vector(10.12, -12.1, 0), App.Vector(13.29, -12.1, 0)), False)
sketch15.addGeometry(Part.LineSegment(App.Vector(13.29, -12.1, 0), App.Vector(13.29, -12.6, 0)), False)
sketch15.addConstraint(Sketcher.Constraint("Coincident", 0, 2, 1, 1))
sketch15.addConstraint(Sketcher.Constraint("Coincident", 1, 2, 2, 1))
sketch15.addConstraint(Sketcher.Constraint("Coincident", 2, 2, 3, 1))
sketch15.addConstraint(Sketcher.Constraint("Coincident", 3, 2, 4, 1))
sketch15.addConstraint(Sketcher.Constraint("Coincident", 4, 2, 5, 1))
sketch15.addConstraint(Sketcher.Constraint("Coincident", 5, 2, 0, 1))
sketch15.addConstraint(Sketcher.Constraint("Horizontal", 0))
sketch15.addConstraint(Sketcher.Constraint("Vertical", 1))
sketch15.addConstraint(Sketcher.Constraint("Horizontal", 2))
sketch15.addConstraint(Sketcher.Constraint("Vertical", 3))
sketch15.addConstraint(Sketcher.Constraint("Horizontal", 4))
sketch15.addConstraint(Sketcher.Constraint("Vertical", 5))
sketch15.addConstraint(Sketcher.Constraint("DistanceY", 3, 1, 3, 2, Q("3.5 mm")))
sketch15.addConstraint(Sketcher.Constraint("DistanceX", -1, 1, 0, 2, Q("16.4 mm")))
sketch15.addConstraint(Sketcher.Constraint("DistanceX", 4, 1, 4, 2, Q("3.175 mm")))
sketch15.addConstraint(Sketcher.Constraint("DistanceX", 0, 1, 0, 2, Q("3.106224 mm")))
sketch15.addConstraint(Sketcher.Constraint("DistanceY", 1, 2, 1, 1, Q("3.000094 mm")))
sketch15.addConstraint(Sketcher.Constraint("DistanceY", 1, 2, -1, 1, Q("15.60013 mm")))
pad8 = doc.addObject("PartDesign::Pad", "Pad007")
body.addObject(pad8)
pad8.Profile = sketch15
pad8.Length = 45.22
pad8.Reversed = True

# Sketch on XZ plane
sketch16 = doc.addObject("Sketcher::SketchObject", "Sketch015")
body.addObject(sketch16)
sketch16.AttachmentSupport = (doc.XZ_Plane, [""])
sketch16.MapMode = "FlatFace"
sketch16.AttachmentOffset = App.Placement(App.Vector(0, 0, 79.175), App.Rotation())
sketch16.addGeometry(Part.LineSegment(App.Vector(13.3, 19.8, 0), App.Vector(13.3, 22.5, 0)), False)
sketch16.addGeometry(Part.LineSegment(App.Vector(13.3, 22.5, 0), App.Vector(18.7, 22.5, 0)), False)
sketch16.addGeometry(Part.LineSegment(App.Vector(18.7, 22.5, 0), App.Vector(18.7, 19.8, 0)), False)
sketch16.addGeometry(Part.LineSegment(App.Vector(18.7, 19.8, 0), App.Vector(13.3, 19.8, 0)), False)
sketch16.addConstraint(Sketcher.Constraint("Coincident", 0, 2, 1, 1))
sketch16.addConstraint(Sketcher.Constraint("Coincident", 1, 2, 2, 1))
sketch16.addConstraint(Sketcher.Constraint("Coincident", 2, 2, 3, 1))
sketch16.addConstraint(Sketcher.Constraint("Coincident", 3, 2, 0, 1))
sketch16.addConstraint(Sketcher.Constraint("Vertical", 0))
sketch16.addConstraint(Sketcher.Constraint("Horizontal", 1))
sketch16.addConstraint(Sketcher.Constraint("Vertical", 2))
sketch16.addConstraint(Sketcher.Constraint("Horizontal", 3))
sketch16.addConstraint(Sketcher.Constraint("DistanceY", 0, 1, 0, 2, Q("2.7 mm")))
sketch16.addConstraint(Sketcher.Constraint("DistanceY", -1, 1, 0, 2, Q("22.5 mm")))
sketch16.addConstraint(Sketcher.Constraint("DistanceX", 1, 1, 1, 2, Q("5.38629 mm")))
sketch16.addConstraint(Sketcher.Constraint("DistanceX", -1, 1, 0, 2, Q("13.293776 mm")))
pad9 = doc.addObject("PartDesign::Pad", "Pad008")
body.addObject(pad9)
pad9.Profile = sketch16
pad9.Length = 45.22
pad9.Reversed = True
doc.recompute()

datumplane = doc.addObject("PartDesign::Plane", "DatumPlane")
body.addObject(datumplane)
datumplane.AttachmentSupport = (doc.YZ_Plane, [""])
datumplane.MapMode = "FlatFace"
datumplane.AttachmentOffset = App.Placement(App.Vector(0, 0, 25.85), App.Rotation())
mirrored = doc.addObject("PartDesign::Mirrored", "Mirrored")
body.addObject(mirrored)
mirrored.Originals = [pad8, pad9]
mirrored.MirrorPlane = (datumplane, [""])
body.Tip = mirrored

# Sketch on XZ plane
sketch17 = doc.addObject("Sketcher::SketchObject", "Sketch016")
body.addObject(sketch17)
sketch17.AttachmentSupport = (doc.XZ_Plane, [""])
sketch17.MapMode = "FlatFace"
sketch17.AttachmentOffset = App.Placement(App.Vector(0, 0, 33.955), App.Rotation())
sketch17.addGeometry(Part.LineSegment(App.Vector(13.293776, 19.8, 0), App.Vector(13.293776, -12.600037, 0)), False)
sketch17.addGeometry(Part.LineSegment(App.Vector(13.293776, -12.600037, 0), App.Vector(16.4, -12.600037, 0)), False)
sketch17.addGeometry(Part.LineSegment(App.Vector(16.4, -12.600037, 0), App.Vector(16.4, -15.60013, 0)), False)
sketch17.addGeometry(Part.LineSegment(App.Vector(16.4, -15.60013, 0), App.Vector(10.118776, -15.60013, 0)), False)
sketch17.addGeometry(Part.LineSegment(App.Vector(10.118776, -15.60013, 0), App.Vector(10.118776, 22.5, 0)), False)
sketch17.addGeometry(Part.LineSegment(App.Vector(10.118776, 22.5, 0), App.Vector(18.680066, 22.5, 0)), False)
sketch17.addGeometry(Part.LineSegment(App.Vector(18.680066, 22.5, 0), App.Vector(18.680066, 19.8, 0)), False)
sketch17.addGeometry(Part.LineSegment(App.Vector(18.680066, 19.8, 0), App.Vector(13.293776, 19.8, 0)), False)
sketch17.addGeometry(Part.LineSegment(App.Vector(41.581224, 22.5, 0), App.Vector(41.581224, -15.60013, 0)), False)
sketch17.addGeometry(Part.LineSegment(App.Vector(41.581224, -15.60013, 0), App.Vector(35.3, -15.60013, 0)), False)
sketch17.addGeometry(Part.LineSegment(App.Vector(35.3, -15.60013, 0), App.Vector(35.3, -12.600037, 0)), False)
sketch17.addGeometry(Part.LineSegment(App.Vector(35.3, -12.600037, 0), App.Vector(38.406224, -12.600037, 0)), False)
sketch17.addGeometry(Part.LineSegment(App.Vector(38.406224, -12.600037, 0), App.Vector(38.406224, 19.8, 0)), False)
sketch17.addGeometry(Part.LineSegment(App.Vector(38.406224, 19.8, 0), App.Vector(33.019934, 19.8, 0)), False)
sketch17.addGeometry(Part.LineSegment(App.Vector(33.019934, 19.8, 0), App.Vector(33.019934, 22.5, 0)), False)
sketch17.addGeometry(Part.LineSegment(App.Vector(33.019934, 22.5, 0), App.Vector(41.581224, 22.5, 0)), False)
sketch17.addConstraint(Sketcher.Constraint("Coincident", 0, 2, 1, 1))
sketch17.addConstraint(Sketcher.Constraint("Coincident", 1, 2, 2, 1))
sketch17.addConstraint(Sketcher.Constraint("Coincident", 2, 2, 3, 1))
sketch17.addConstraint(Sketcher.Constraint("Coincident", 3, 2, 4, 1))
sketch17.addConstraint(Sketcher.Constraint("Coincident", 4, 2, 5, 1))
sketch17.addConstraint(Sketcher.Constraint("Coincident", 5, 2, 6, 1))
sketch17.addConstraint(Sketcher.Constraint("Coincident", 6, 2, 7, 1))
sketch17.addConstraint(Sketcher.Constraint("Coincident", 7, 2, 0, 1))
sketch17.addConstraint(Sketcher.Constraint("Coincident", 8, 2, 9, 1))
sketch17.addConstraint(Sketcher.Constraint("Coincident", 9, 2, 10, 1))
sketch17.addConstraint(Sketcher.Constraint("Coincident", 10, 2, 11, 1))
sketch17.addConstraint(Sketcher.Constraint("Coincident", 11, 2, 12, 1))
sketch17.addConstraint(Sketcher.Constraint("Coincident", 12, 2, 13, 1))
sketch17.addConstraint(Sketcher.Constraint("Coincident", 13, 2, 14, 1))
sketch17.addConstraint(Sketcher.Constraint("Coincident", 14, 2, 15, 1))
sketch17.addConstraint(Sketcher.Constraint("Coincident", 15, 2, 8, 1))
sketch17.addConstraint(Sketcher.Constraint("Vertical", 0))
sketch17.addConstraint(Sketcher.Constraint("Horizontal", 1))
sketch17.addConstraint(Sketcher.Constraint("Vertical", 2))
sketch17.addConstraint(Sketcher.Constraint("Horizontal", 3))
sketch17.addConstraint(Sketcher.Constraint("Vertical", 4))
sketch17.addConstraint(Sketcher.Constraint("Horizontal", 5))
sketch17.addConstraint(Sketcher.Constraint("Vertical", 6))
sketch17.addConstraint(Sketcher.Constraint("Horizontal", 7))
sketch17.addConstraint(Sketcher.Constraint("Vertical", 8))
sketch17.addConstraint(Sketcher.Constraint("Horizontal", 9))
sketch17.addConstraint(Sketcher.Constraint("Vertical", 10))
sketch17.addConstraint(Sketcher.Constraint("Horizontal", 11))
sketch17.addConstraint(Sketcher.Constraint("Vertical", 12))
sketch17.addConstraint(Sketcher.Constraint("Horizontal", 13))
sketch17.addConstraint(Sketcher.Constraint("Vertical", 14))
sketch17.addConstraint(Sketcher.Constraint("Horizontal", 15))
sketch17.addConstraint(Sketcher.Constraint("Horizontal", 3, 2, 8, 2))
sketch17.addConstraint(Sketcher.Constraint("Horizontal", 1, 2, 10, 2))
sketch17.addConstraint(Sketcher.Constraint("Horizontal", 7, 2, 12, 2))
sketch17.addConstraint(Sketcher.Constraint("Horizontal", 5, 2, 14, 2))
sketch17.addConstraint(Sketcher.Constraint("Equal", 3, 9))
sketch17.addConstraint(Sketcher.Constraint("Equal", 1, 11))
sketch17.addConstraint(Sketcher.Constraint("Equal", 7, 13))
sketch17.addConstraint(Sketcher.Constraint("DistanceY", 6, 2, 6, 1, Q("2.7 mm")))
sketch17.addConstraint(Sketcher.Constraint("DistanceX", -1, 1, 1, 2, Q("16.4 mm")))
sketch17.addConstraint(Sketcher.Constraint("DistanceY", -1, 1, 4, 2, Q("22.5 mm")))
sketch17.addConstraint(Sketcher.Constraint("DistanceX", -1, 1, 9, 2, Q("35.3 mm")))
sketch17.addConstraint(Sketcher.Constraint("DistanceX", 3, 2, 0, 2, Q("3.175 mm")))
sketch17.addConstraint(Sketcher.Constraint("DistanceX", 5, 1, 5, 2, Q("8.56129 mm")))
sketch17.addConstraint(Sketcher.Constraint("DistanceY", 4, 1, 4, 2, Q("38.10013 mm")))
sketch17.addConstraint(Sketcher.Constraint("DistanceX", 1, 1, 1, 2, Q("3.106224 mm")))
sketch17.addConstraint(Sketcher.Constraint("DistanceY", 0, 2, 0, 1, Q("32.400037 mm")))
pad10 = doc.addObject("PartDesign::Pad", "Pad009")
body.addObject(pad10)
pad10.Profile = sketch17
pad10.Length = 0.2
pad10.Reversed = True

# Sketch on XY plane
sketch18 = doc.addObject("Sketcher::SketchObject", "Sketch017")
body.addObject(sketch18)
sketch18.AttachmentSupport = (doc.XY_Plane, [""])
sketch18.MapMode = "FlatFace"
sketch18.AttachmentOffset = App.Placement(App.Vector(0, 0, 26.5), App.Rotation())
sketch18.addGeometry(Part.Circle(App.Vector(36.7, -39.2, 0), App.Vector(0, 0, 1), 1.4), False)
sketch18.addGeometry(Part.Circle(App.Vector(25.8, -39.2, 0), App.Vector(0, 0, 1), 1.4), False)
sketch18.addGeometry(Part.Circle(App.Vector(15, -39.2, 0), App.Vector(0, 0, 1), 1.4), False)
sketch18.addConstraint(Sketcher.Constraint("Equal", 0, 1))
sketch18.addConstraint(Sketcher.Constraint("Equal", 1, 2))
sketch18.addConstraint(Sketcher.Constraint("Horizontal", 0, 3, 1, 3))
sketch18.addConstraint(Sketcher.Constraint("Horizontal", 1, 3, 2, 3))
sketch18.addConstraint(Sketcher.Constraint("Diameter", 0, Q("2.7 mm")))
sketch18.addConstraint(Sketcher.Constraint("DistanceX", 2, 3, 0, 3, Q("21.637211 mm")))
sketch18.addConstraint(Sketcher.Constraint("DistanceX", -1, 1, 0, 3, Q("36.668604 mm")))
sketch18.addConstraint(Sketcher.Constraint("DistanceY", 0, 3, -1, 1, Q("39.204067 mm")))
sketch18.addConstraint(Sketcher.Constraint("DistanceX", -1, 1, 1, 3, Q("25.849998 mm")))
pocket8 = doc.addObject("PartDesign::Pocket", "Pocket007")
body.addObject(pocket8)
pocket8.Profile = sketch18
pocket8.Length = 5

doc.recompute()
